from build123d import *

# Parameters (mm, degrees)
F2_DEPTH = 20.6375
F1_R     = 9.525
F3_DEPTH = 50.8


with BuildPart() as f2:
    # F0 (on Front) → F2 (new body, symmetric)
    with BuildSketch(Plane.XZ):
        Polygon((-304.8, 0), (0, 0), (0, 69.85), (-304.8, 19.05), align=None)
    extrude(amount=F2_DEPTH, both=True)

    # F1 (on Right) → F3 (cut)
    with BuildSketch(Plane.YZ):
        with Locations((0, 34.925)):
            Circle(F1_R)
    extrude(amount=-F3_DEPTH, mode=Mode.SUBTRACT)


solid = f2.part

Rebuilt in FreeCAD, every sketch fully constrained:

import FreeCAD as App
import Part
import Sketcher
from FreeCAD import Vector
Q = App.Units.Quantity


def add_polygon(sketch, points):
    """Adds a closed chain of lines whose ends are joined by coincident constraints."""
    first, n = sketch.GeometryCount, len(points)
    for a, b in zip(points, points[1:] + points[:1]):
        sketch.addGeometry(Part.LineSegment(App.Vector(*a, 0), App.Vector(*b, 0)), False)
    for i in range(n):
        sketch.addConstraint(Sketcher.Constraint("Coincident", first + i, 2, first + (i + 1) % n, 1))

doc = App.newDocument("Part")
body = doc.addObject("PartDesign::Body", "Body")

sketch1 = body.newObject("Sketcher::SketchObject", "Sketch")
sketch1.AttachmentSupport = (doc.getObject("XZ_Plane"), [""])
sketch1.MapMode = "FlatFace"
add_polygon(sketch1, [(-305, 0), (0, 0), (0, 70), (-305, 19)])
sketch1.addConstraint([
    Sketcher.Constraint("Horizontal", 0),
    Sketcher.Constraint("Vertical", 1),
    Sketcher.Constraint("Vertical", 3),
    Sketcher.Constraint("Coincident", 0, 2, -1, 1),
    Sketcher.Constraint("DistanceX", 0, 1, 0, 2, Q("12 in")),
    Sketcher.Constraint("DistanceY", 2, 2, 1, 2, Q("2 in")),
    Sketcher.Constraint("DistanceY", 1, 1, 1, 2, Q("2.75 in")),
])
pad1 = body.newObject("PartDesign::Pad", "Pad")
pad1.Profile = sketch1
pad1.Length = Q("1.625 in")
pad1.Midplane = True

sketch2 = body.newObject("Sketcher::SketchObject", "Sketch001")
sketch2.AttachmentSupport = (doc.getObject("YZ_Plane"), [""])
sketch2.MapMode = "FlatFace"
sketch2.addGeometry(Part.Circle(Vector(0, 35, 0), Vector(0, 0, 1), 10), False)
sketch2.addConstraint([
    Sketcher.Constraint("PointOnObject", 0, 3, -2),
    Sketcher.Constraint("Diameter", 0, Q("0.75 in")),
    Sketcher.Constraint("DistanceY", -1, 1, 0, 3, Q("1.375 in")),
])
pocket1 = body.newObject("PartDesign::Pocket", "Pocket")
pocket1.Profile = sketch2
pocket1.Length = Q("2 in")

doc.recompute()
